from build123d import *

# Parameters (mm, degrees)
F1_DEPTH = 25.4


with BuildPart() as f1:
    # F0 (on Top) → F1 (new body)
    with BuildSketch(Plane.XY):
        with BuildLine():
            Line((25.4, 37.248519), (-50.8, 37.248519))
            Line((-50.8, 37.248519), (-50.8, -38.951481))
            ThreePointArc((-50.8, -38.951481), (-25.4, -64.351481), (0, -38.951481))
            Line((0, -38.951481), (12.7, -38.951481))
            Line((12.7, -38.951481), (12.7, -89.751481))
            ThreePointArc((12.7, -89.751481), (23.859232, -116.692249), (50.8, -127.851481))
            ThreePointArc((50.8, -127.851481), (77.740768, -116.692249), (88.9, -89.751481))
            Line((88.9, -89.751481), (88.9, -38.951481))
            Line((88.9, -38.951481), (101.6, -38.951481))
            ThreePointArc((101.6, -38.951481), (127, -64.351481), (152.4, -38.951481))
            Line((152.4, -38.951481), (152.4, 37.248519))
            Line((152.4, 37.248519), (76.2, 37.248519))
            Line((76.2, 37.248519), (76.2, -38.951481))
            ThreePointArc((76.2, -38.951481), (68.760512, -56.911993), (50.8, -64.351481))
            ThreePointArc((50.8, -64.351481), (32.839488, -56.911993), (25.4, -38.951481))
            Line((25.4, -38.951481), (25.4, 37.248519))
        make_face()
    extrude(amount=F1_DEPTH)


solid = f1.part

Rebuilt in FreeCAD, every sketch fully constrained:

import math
import FreeCAD as App
import Part
import Sketcher
from FreeCAD import Vector
Q = App.Units.Quantity

doc = App.newDocument("Part")
body = doc.addObject("PartDesign::Body", "Body")

sketch1 = body.newObject("Sketcher::SketchObject", "Sketch")
sketch1.AttachmentSupport = (doc.getObject("XY_Plane"), [""])
sketch1.MapMode = "FlatFace"
sketch1.addGeometry([
    Part.LineSegment(Vector(25, 37, 0), Vector(-51, 37, 0)),
    Part.LineSegment(Vector(-51, 37, 0), Vector(-51, -39, 0)),
    Part.ArcOfCircle(Part.Circle(Vector(-25, -39, 0), Vector(0, 0, 1), 25), math.radians(180), math.radians(360)),
    Part.LineSegment(Vector(0, -39, 0), Vector(13, -39, 0)),
    Part.LineSegment(Vector(13, -39, 0), Vector(13, -90, 0)),
    Part.ArcOfCircle(Part.Circle(Vector(51, -90, 0), Vector(0, 0, 1), 38), math.radians(-180), math.radians(-90)),
    Part.ArcOfCircle(Part.Circle(Vector(51, -90, 0), Vector(0, 0, 1), 38), math.radians(-90), math.radians(0)),
    Part.LineSegment(Vector(89, -90, 0), Vector(89, -39, 0)),
    Part.LineSegment(Vector(89, -39, 0), Vector(102, -39, 0)),
    Part.ArcOfCircle(Part.Circle(Vector(127, -39, 0), Vector(0, 0, 1), 25), math.radians(180), math.radians(360)),
    Part.LineSegment(Vector(152, -39, 0), Vector(152, 37, 0)),
    Part.LineSegment(Vector(152, 37, 0), Vector(76, 37, 0)),
    Part.LineSegment(Vector(76, 37, 0), Vector(76, -39, 0)),
    Part.ArcOfCircle(Part.Circle(Vector(51, -39, 0), Vector(0, 0, 1), 25), math.radians(-90), math.radians(0)),
    Part.ArcOfCircle(Part.Circle(Vector(51, -39, 0), Vector(0, 0, 1), 25), math.radians(-180), math.radians(-90)),
    Part.LineSegment(Vector(25, -39, 0), Vector(25, 37, 0)),
], False)
sketch1.addConstraint([
    Sketcher.Constraint("Coincident", 0, 2, 1, 1),
    Sketcher.Constraint("Tangent", 1, 2, 2, 1),
    Sketcher.Constraint("Coincident", 2, 2, 3, 1),
    Sketcher.Constraint("Coincident", 3, 2, 4, 1),
    Sketcher.Constraint("Tangent", 4, 2, 5, 1),
    Sketcher.Constraint("Tangent", 5, 2, 6, 1),
    Sketcher.Constraint("Tangent", 6, 2, 7, 1),
    Sketcher.Constraint("Coincident", 7, 2, 8, 1),
    Sketcher.Constraint("Coincident", 8, 2, 9, 1),
    Sketcher.Constraint("Tangent", 9, 2, 10, 1),
    Sketcher.Constraint("Coincident", 10, 2, 11, 1),
    Sketcher.Constraint("Coincident", 11, 2, 12, 1),
    Sketcher.Constraint("Tangent", 12, 2, 13, 2),
    Sketcher.Constraint("Tangent", 13, 1, 14, 2),
    Sketcher.Constraint("Tangent", 14, 1, 15, 1),
    Sketcher.Constraint("Coincident", 15, 2, 0, 1),
    Sketcher.Constraint("Horizontal", 0),
    Sketcher.Constraint("Vertical", 1),
    Sketcher.Constraint("Horizontal", 3),
    Sketcher.Constraint("Vertical", 4),
    Sketcher.Constraint("Vertical", 7),
    Sketcher.Constraint("Horizontal", 8),
    Sketcher.Constraint("Vertical", 10),
    Sketcher.Constraint("Horizontal", 11),
    Sketcher.Constraint("Vertical", 12),
    Sketcher.Constraint("Vertical", 15),
    Sketcher.Constraint("Equal", 5, 6),
    Sketcher.Constraint("Equal", 2, 9),
    Sketcher.Constraint("Equal", 9, 13),
    Sketcher.Constraint("Equal", 13, 14),
    Sketcher.Constraint("PointOnObject", 2, 2, -2),
    Sketcher.Constraint("Horizontal", 2, 3, 9, 3),
    Sketcher.Constraint("Horizontal", 9, 3, 13, 3),
    Sketcher.Constraint("Horizontal", 1, 2, 2, 2),
    Sketcher.Constraint("Horizontal", 3, 2, 7, 2),
    Sketcher.Constraint("Horizontal", 0, 2, 10, 2),
    Sketcher.Constraint("Vertical", 6, 3, 13, 3),
    Sketcher.Constraint("Vertical", 14, 3, 5, 2),
    Sketcher.Constraint("Vertical", 5, 2, 13, 1),
    Sketcher.Constraint("Equal", 3, 8),
    Sketcher.Constraint("Equal", 11, 1),
    Sketcher.Constraint("Radius", 2, Q("1 in")),
    Sketcher.Constraint("Radius", 5, Q("1.5 in")),
    Sketcher.Constraint("DistanceX", 0, 2, 0, 1, Q("3 in")),
    Sketcher.Constraint("DistanceY", 4, 2, 4, 1, Q("2 in")),
    Sketcher.Constraint("DistanceY", 2, 3, -1, 1, 38.951481),
])
pad1 = body.newObject("PartDesign::Pad", "Pad")
pad1.Profile = sketch1
pad1.Length = Q("1 in")

doc.recompute()
